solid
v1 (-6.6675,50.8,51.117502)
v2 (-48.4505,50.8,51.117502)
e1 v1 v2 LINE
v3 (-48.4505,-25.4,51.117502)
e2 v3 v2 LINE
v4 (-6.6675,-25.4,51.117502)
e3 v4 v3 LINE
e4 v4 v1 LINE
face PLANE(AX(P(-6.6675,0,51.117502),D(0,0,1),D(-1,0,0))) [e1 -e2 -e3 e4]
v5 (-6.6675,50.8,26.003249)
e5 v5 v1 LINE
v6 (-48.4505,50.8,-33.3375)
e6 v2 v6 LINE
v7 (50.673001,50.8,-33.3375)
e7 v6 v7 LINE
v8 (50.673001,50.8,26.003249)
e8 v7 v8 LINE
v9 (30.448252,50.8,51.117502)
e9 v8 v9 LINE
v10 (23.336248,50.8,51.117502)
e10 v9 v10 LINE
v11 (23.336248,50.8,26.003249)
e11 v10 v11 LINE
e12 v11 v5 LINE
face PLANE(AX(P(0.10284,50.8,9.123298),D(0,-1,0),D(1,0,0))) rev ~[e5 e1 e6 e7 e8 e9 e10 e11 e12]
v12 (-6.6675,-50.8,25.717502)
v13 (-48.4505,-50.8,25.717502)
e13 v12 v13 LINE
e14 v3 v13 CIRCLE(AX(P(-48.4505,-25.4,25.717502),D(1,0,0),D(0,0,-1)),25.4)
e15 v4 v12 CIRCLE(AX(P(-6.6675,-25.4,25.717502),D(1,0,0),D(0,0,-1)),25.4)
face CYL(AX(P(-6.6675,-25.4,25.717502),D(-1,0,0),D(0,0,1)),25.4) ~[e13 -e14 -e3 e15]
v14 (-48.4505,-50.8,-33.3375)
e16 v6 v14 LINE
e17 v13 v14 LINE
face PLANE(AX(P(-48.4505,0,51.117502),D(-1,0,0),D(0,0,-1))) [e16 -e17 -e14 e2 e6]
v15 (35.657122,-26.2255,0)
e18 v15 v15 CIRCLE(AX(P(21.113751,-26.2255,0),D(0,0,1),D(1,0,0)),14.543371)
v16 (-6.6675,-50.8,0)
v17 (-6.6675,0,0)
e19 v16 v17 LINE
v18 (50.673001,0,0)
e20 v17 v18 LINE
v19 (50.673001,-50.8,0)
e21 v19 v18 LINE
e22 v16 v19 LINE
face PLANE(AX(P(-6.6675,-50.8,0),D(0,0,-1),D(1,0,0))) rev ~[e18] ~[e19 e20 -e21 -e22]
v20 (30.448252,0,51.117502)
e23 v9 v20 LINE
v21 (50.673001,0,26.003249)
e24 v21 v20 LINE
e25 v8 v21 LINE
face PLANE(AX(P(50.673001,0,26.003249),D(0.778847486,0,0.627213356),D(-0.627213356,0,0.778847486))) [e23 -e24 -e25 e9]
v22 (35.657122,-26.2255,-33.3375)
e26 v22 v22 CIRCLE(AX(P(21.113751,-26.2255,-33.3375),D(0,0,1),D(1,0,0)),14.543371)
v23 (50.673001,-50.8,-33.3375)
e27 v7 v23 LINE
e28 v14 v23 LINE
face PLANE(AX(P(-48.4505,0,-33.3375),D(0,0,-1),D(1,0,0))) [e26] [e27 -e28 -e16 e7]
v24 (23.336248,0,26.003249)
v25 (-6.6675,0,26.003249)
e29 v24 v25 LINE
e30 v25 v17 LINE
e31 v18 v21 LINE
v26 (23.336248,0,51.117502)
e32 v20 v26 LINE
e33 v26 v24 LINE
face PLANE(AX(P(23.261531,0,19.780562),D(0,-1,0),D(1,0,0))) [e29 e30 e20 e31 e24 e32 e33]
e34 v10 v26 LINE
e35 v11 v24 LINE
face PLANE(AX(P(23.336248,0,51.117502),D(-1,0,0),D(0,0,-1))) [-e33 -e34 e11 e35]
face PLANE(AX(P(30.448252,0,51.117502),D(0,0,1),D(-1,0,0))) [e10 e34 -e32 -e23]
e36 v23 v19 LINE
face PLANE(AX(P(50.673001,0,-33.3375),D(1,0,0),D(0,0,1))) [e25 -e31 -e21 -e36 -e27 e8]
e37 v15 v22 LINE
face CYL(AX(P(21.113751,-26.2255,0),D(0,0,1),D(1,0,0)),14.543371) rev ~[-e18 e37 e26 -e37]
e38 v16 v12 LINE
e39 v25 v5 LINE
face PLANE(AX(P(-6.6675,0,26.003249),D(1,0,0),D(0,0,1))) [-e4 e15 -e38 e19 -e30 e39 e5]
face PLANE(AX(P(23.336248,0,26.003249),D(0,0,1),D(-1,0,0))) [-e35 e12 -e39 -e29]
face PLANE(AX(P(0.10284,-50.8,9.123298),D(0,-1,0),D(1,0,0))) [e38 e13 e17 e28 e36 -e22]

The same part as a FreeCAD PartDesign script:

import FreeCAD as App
import Part
import Sketcher
Q = App.Units.Quantity


def edges_at(feature, points):
    """Names of the edges that pass closest to the given points."""
    edges = feature.Shape.Edges
    near = lambda p: min(range(len(edges)), key=lambda i: edges[i].distToShape(Part.Vertex(*p))[0])
    return sorted({f"Edge{near(p) + 1}" for p in points})

doc = App.newDocument("Part")
body = doc.addObject("PartDesign::Body", "Body")

# Sketch on XZ plane
sketch1 = doc.addObject("Sketcher::SketchObject", "Sketch")
body.addObject(sketch1)
sketch1.AttachmentSupport = (doc.XZ_Plane, [""])
sketch1.MapMode = "FlatFace"
sketch1.addGeometry(Part.LineSegment(App.Vector(-48, 51, 0), App.Vector(-48, -33, 0)), False)
sketch1.addGeometry(Part.LineSegment(App.Vector(-48, -33, 0), App.Vector(51, -33, 0)), False)
sketch1.addGeometry(Part.LineSegment(App.Vector(51, -33, 0), App.Vector(51, 26, 0)), False)
sketch1.addGeometry(Part.LineSegment(App.Vector(51, 26, 0), App.Vector(30, 51, 0)), False)
sketch1.addGeometry(Part.LineSegment(App.Vector(30, 51, 0), App.Vector(23, 51, 0)), False)
sketch1.addGeometry(Part.LineSegment(App.Vector(23, 51, 0), App.Vector(23, 26, 0)), False)
sketch1.addGeometry(Part.LineSegment(App.Vector(23, 26, 0), App.Vector(-7, 26, 0)), False)
sketch1.addGeometry(Part.LineSegment(App.Vector(-7, 26, 0), App.Vector(-7, 51, 0)), False)
sketch1.addGeometry(Part.LineSegment(App.Vector(-7, 51, 0), App.Vector(-48, 51, 0)), False)
sketch1.addConstraint(Sketcher.Constraint("Coincident", 0, 2, 1, 1))
sketch1.addConstraint(Sketcher.Constraint("Coincident", 1, 2, 2, 1))
sketch1.addConstraint(Sketcher.Constraint("Coincident", 2, 2, 3, 1))
sketch1.addConstraint(Sketcher.Constraint("Coincident", 3, 2, 4, 1))
sketch1.addConstraint(Sketcher.Constraint("Coincident", 4, 2, 5, 1))
sketch1.addConstraint(Sketcher.Constraint("Coincident", 5, 2, 6, 1))
sketch1.addConstraint(Sketcher.Constraint("Coincident", 6, 2, 7, 1))
sketch1.addConstraint(Sketcher.Constraint("Coincident", 7, 2, 8, 1))
sketch1.addConstraint(Sketcher.Constraint("Coincident", 8, 2, 0, 1))
sketch1.addConstraint(Sketcher.Constraint("Vertical", 0))
sketch1.addConstraint(Sketcher.Constraint("Horizontal", 1))
sketch1.addConstraint(Sketcher.Constraint("Vertical", 2))
sketch1.addConstraint(Sketcher.Constraint("Horizontal", 4))
sketch1.addConstraint(Sketcher.Constraint("Vertical", 5))
sketch1.addConstraint(Sketcher.Constraint("Horizontal", 6))
sketch1.addConstraint(Sketcher.Constraint("Vertical", 7))
sketch1.addConstraint(Sketcher.Constraint("Horizontal", 8))
sketch1.addConstraint(Sketcher.Constraint("Horizontal", 2, 2, 5, 2))
sketch1.addConstraint(Sketcher.Constraint("Horizontal", 4, 2, 7, 2))
sketch1.addConstraint(Sketcher.Constraint("DistanceX", 4, 2, 4, 1, Q("0.2800002 in")))
sketch1.addConstraint(Sketcher.Constraint("DistanceX", 8, 2, 8, 1, Q("1.645 in")))
sketch1.addConstraint(Sketcher.Constraint("DistanceY", 0, 2, 0, 1, Q("3.3250001 in")))
sketch1.addConstraint(Sketcher.Constraint("DistanceX", 1, 1, 1, 2, Q("3.9025 in")))
sketch1.addConstraint(Sketcher.Constraint("DistanceY", 0, 2, -1, 1, Q("1.3125 in")))
sketch1.addConstraint(Sketcher.Constraint("DistanceX", -1, 1, 1, 2, Q("1.995 in")))
sketch1.addConstraint(Sketcher.Constraint("DistanceX", 6, 2, 6, 1, 30.003748))
sketch1.addConstraint(Sketcher.Constraint("DistanceY", 2, 1, 2, 2, 59.340749))
pad1 = doc.addObject("PartDesign::Pad", "Pad")
body.addObject(pad1)
pad1.Profile = sketch1
pad1.Length = Q("4 in")
pad1.Midplane = True

# Sketch on XZ plane
sketch2 = doc.addObject("Sketcher::SketchObject", "Sketch001")
body.addObject(sketch2)
sketch2.AttachmentSupport = (doc.XZ_Plane, [""])
sketch2.MapMode = "FlatFace"
sketch2.AttachmentOffset = App.Placement(App.Vector(0, 0, 2 * 25.4), App.Rotation())
sketch2.addGeometry(Part.LineSegment(App.Vector(23, 26, 0), App.Vector(-7, 26, 0)), False)
sketch2.addGeometry(Part.LineSegment(App.Vector(-7, 26, 0), App.Vector(-7, 0, 0)), False)
sketch2.addGeometry(Part.LineSegment(App.Vector(-7, 0, 0), App.Vector(51, 0, 0)), False)
sketch2.addGeometry(Part.LineSegment(App.Vector(51, 0, 0), App.Vector(51, 26, 0)), False)
sketch2.addGeometry(Part.LineSegment(App.Vector(51, 26, 0), App.Vector(30, 51, 0)), False)
sketch2.addGeometry(Part.LineSegment(App.Vector(30, 51, 0), App.Vector(23, 51, 0)), False)
sketch2.addGeometry(Part.LineSegment(App.Vector(23, 51, 0), App.Vector(23, 26, 0)), False)
sketch2.addConstraint(Sketcher.Constraint("Coincident", 0, 2, 1, 1))
sketch2.addConstraint(Sketcher.Constraint("Coincident", 1, 2, 2, 1))
sketch2.addConstraint(Sketcher.Constraint("Coincident", 2, 2, 3, 1))
sketch2.addConstraint(Sketcher.Constraint("Coincident", 3, 2, 4, 1))
sketch2.addConstraint(Sketcher.Constraint("Coincident", 4, 2, 5, 1))
sketch2.addConstraint(Sketcher.Constraint("Coincident", 5, 2, 6, 1))
sketch2.addConstraint(Sketcher.Constraint("Coincident", 6, 2, 0, 1))
sketch2.addConstraint(Sketcher.Constraint("Horizontal", 0))
sketch2.addConstraint(Sketcher.Constraint("Vertical", 1))
sketch2.addConstraint(Sketcher.Constraint("Horizontal", 2))
sketch2.addConstraint(Sketcher.Constraint("Vertical", 3))
sketch2.addConstraint(Sketcher.Constraint("Horizontal", 5))
sketch2.addConstraint(Sketcher.Constraint("Vertical", 6))
sketch2.addConstraint(Sketcher.Constraint("PointOnObject", 1, 2, -1))
sketch2.addConstraint(Sketcher.Constraint("Horizontal", 0, 2, 3, 2))
sketch2.addConstraint(Sketcher.Constraint("DistanceX", 5, 2, 5, 1, Q("0.2800002 in")))
sketch2.addConstraint(Sketcher.Constraint("DistanceX", 2, 1, 2, 2, Q("2.2575 in")))
sketch2.addConstraint(Sketcher.Constraint("DistanceX", -1, 1, 2, 2, Q("1.995 in")))
sketch2.addConstraint(Sketcher.Constraint("DistanceY", -1, 1, 4, 2, Q("2.0125001 in")))
sketch2.addConstraint(Sketcher.Constraint("DistanceX", 0, 2, 0, 1, 30.003748))
sketch2.addConstraint(Sketcher.Constraint("DistanceY", 1, 2, 1, 1, 26.003249))
pocket1 = doc.addObject("PartDesign::Pocket", "Pocket")
body.addObject(pocket1)
pocket1.Profile = sketch2
pocket1.Length = Q("2 in")
doc.recompute()

fillet = doc.addObject("PartDesign::Fillet", "Fillet")
body.addObject(fillet)
fillet.Base = (pocket1, edges_at(pocket1, [(-27.559, -50.8, 51.118)]))
fillet.Radius = Q("1 in")

# Sketch on XY plane
sketch3 = doc.addObject("Sketcher::SketchObject", "Sketch002")
body.addObject(sketch3)
sketch3.AttachmentSupport = (doc.XY_Plane, [""])
sketch3.MapMode = "FlatFace"
sketch3.addGeometry(Part.Circle(App.Vector(21, -26, 0), App.Vector(0, 0, 1), 15), False)
sketch3.addConstraint(Sketcher.Constraint("Diameter", 0, 29.086742))
sketch3.addConstraint(Sketcher.Constraint("DistanceY", 0, 3, -1, 1, Q("1.0325 in")))
sketch3.addConstraint(Sketcher.Constraint("DistanceX", -1, 1, 0, 3, 21.113751))
pocket2 = doc.addObject("PartDesign::Pocket", "Pocket001")
body.addObject(pocket2)
pocket2.Profile = sketch3
pocket2.Type = "ThroughAll"

doc.recompute()
